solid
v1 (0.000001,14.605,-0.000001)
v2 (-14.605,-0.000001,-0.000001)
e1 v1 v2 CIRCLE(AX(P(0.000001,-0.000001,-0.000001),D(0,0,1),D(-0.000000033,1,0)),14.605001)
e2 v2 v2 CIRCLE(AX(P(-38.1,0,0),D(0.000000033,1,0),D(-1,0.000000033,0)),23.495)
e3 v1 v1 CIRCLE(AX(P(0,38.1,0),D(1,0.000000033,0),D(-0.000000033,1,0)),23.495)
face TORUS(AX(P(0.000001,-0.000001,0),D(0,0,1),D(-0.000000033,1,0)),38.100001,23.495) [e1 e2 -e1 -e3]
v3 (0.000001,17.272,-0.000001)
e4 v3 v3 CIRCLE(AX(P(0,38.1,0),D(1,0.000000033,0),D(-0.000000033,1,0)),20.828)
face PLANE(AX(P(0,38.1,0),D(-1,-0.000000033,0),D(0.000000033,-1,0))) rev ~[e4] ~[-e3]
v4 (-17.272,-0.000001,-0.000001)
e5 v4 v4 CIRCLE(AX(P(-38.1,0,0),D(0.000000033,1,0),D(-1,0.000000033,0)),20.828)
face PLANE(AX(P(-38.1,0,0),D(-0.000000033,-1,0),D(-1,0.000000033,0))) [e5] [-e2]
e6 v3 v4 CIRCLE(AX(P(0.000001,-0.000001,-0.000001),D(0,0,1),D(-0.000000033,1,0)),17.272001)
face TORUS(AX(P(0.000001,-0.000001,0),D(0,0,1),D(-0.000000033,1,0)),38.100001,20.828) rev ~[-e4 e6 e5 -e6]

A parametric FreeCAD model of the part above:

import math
import FreeCAD as App
import Part
import Sketcher
from FreeCAD import Vector
Q = App.Units.Quantity

doc = App.newDocument("Part")
params = doc.addObject("Spreadsheet::Sheet", "Params")
for row, (alias, value) in enumerate([
    ("sketch1_diameter", "1.85 in"),
    ("sketch1_diameter2", "1.64 in"),
    ("sketch2_radius", "1.5 in"),
], start=1):
    params.set(f"A{row}", alias)
    params.set(f"B{row}", "=" + value)
    params.setAlias(f"B{row}", alias)

body = doc.addObject("PartDesign::Body", "Body")

sketch1 = body.newObject("Sketcher::SketchObject", "Sketch")
sketch1.AttachmentSupport = (doc.getObject("XZ_Plane"), [""])
sketch1.MapMode = "FlatFace"
sketch1.addGeometry([
    Part.Circle(Vector(-38, 0, 0), Vector(0, 0, 1), 23),
    Part.Circle(Vector(-38, 0, 0), Vector(0, 0, 1), 21),
], False)
sketch1.addConstraint([
    Sketcher.Constraint("Coincident", 1, 3, 0, 3),
    Sketcher.Constraint("PointOnObject", 0, 3, -1),
    Sketcher.Constraint("Diameter", 0, Q("1.85 in")),
    Sketcher.Constraint("Diameter", 1, Q("1.64 in")),
    Sketcher.Constraint("DistanceX", 0, 3, -1, 1, Q("1.5 in")),
])
sketch1.setExpression("Constraints[2]", "Params.sketch1_diameter")
sketch1.setExpression("Constraints[3]", "Params.sketch1_diameter2")

sketch2 = body.newObject("Sketcher::SketchObject", "Sketch001")
sketch2.AttachmentSupport = (doc.getObject("XY_Plane"), [""])
sketch2.MapMode = "FlatFace"
sketch2.addGeometry(Part.ArcOfCircle(Part.Circle(Vector(0, 0, 0), Vector(0, 0, 1), 38), math.radians(90), math.radians(180)), False)
sketch2.addConstraint([
    Sketcher.Constraint("Coincident", 0, 3, -1, 1),
    Sketcher.Constraint("PointOnObject", 0, 1, -2),
    Sketcher.Constraint("PointOnObject", 0, 2, -1),
    Sketcher.Constraint("Radius", 0, Q("1.5 in")),
])
sketch2.setExpression("Constraints[3]", "Params.sketch2_radius")
doc.recompute()

additivepipe = body.newObject("PartDesign::AdditivePipe", "AdditivePipe")
additivepipe.Profile = sketch1
additivepipe.Spine = (sketch2, ["Edge1"])

doc.recompute()
